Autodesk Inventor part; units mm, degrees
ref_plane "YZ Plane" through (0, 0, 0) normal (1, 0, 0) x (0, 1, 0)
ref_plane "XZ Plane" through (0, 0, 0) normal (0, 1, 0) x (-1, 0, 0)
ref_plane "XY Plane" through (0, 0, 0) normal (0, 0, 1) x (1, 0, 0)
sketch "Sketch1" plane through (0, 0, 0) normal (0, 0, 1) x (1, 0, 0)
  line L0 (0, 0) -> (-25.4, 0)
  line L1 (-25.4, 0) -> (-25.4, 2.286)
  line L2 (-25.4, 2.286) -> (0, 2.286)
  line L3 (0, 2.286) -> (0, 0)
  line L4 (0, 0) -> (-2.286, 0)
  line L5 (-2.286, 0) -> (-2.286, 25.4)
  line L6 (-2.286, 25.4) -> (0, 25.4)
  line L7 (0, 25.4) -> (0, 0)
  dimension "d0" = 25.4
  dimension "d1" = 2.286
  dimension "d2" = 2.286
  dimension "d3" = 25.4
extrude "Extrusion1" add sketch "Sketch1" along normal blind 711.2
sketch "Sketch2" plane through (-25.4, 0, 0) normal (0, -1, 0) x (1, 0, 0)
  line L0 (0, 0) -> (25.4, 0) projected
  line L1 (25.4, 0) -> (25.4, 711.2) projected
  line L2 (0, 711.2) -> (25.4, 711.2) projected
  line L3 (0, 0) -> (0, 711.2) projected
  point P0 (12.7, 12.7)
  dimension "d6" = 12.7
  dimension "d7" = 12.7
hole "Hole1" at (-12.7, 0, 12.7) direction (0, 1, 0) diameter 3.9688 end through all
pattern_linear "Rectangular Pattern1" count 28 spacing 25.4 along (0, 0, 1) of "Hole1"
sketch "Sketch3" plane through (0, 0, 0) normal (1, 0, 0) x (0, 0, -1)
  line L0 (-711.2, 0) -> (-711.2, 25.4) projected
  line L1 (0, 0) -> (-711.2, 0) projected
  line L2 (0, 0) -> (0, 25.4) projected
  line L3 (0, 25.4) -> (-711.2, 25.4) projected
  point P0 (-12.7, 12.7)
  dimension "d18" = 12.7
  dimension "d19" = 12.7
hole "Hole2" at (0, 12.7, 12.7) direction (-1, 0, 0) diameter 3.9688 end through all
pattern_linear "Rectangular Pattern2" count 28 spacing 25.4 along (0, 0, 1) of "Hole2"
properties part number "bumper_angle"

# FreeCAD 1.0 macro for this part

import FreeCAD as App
import Part
import Sketcher
from FreeCAD import Vector
Q = App.Units.Quantity


def add_polygon(sketch, points):
    """Adds a closed chain of lines whose ends are joined by coincident constraints."""
    first, n = sketch.GeometryCount, len(points)
    for a, b in zip(points, points[1:] + points[:1]):
        sketch.addGeometry(Part.LineSegment(App.Vector(*a, 0), App.Vector(*b, 0)), False)
    for i in range(n):
        sketch.addConstraint(Sketcher.Constraint("Coincident", first + i, 2, first + (i + 1) % n, 1))

doc = App.newDocument("Part")
body = doc.addObject("PartDesign::Body", "Body")

sketch1 = body.newObject("Sketcher::SketchObject", "Sketch")
sketch1.AttachmentSupport = (doc.getObject("XY_Plane"), [""])
sketch1.MapMode = "FlatFace"
add_polygon(sketch1, [(0, 0), (0, 25.4), (-2.3, 25.4), (-2.3, 2.3), (-25.4, 2.3), (-25.4, 0)])
sketch1.addConstraint([
    Sketcher.Constraint("Vertical", 0),
    Sketcher.Constraint("Horizontal", 1),
    Sketcher.Constraint("Vertical", 2),
    Sketcher.Constraint("Horizontal", 3),
    Sketcher.Constraint("Vertical", 4),
    Sketcher.Constraint("Horizontal", 5),
    Sketcher.Constraint("Coincident", 5, 2, -1, 1),
    Sketcher.Constraint("Equal", 5, 0),
    Sketcher.Constraint("Equal", 3, 2),
    Sketcher.Constraint("DistanceX", 5, 1, 5, 2, Q("1 in")),
    Sketcher.Constraint("DistanceX", 1, 2, 1, 1, Q("0.09 in")),
])
pad1 = body.newObject("PartDesign::Pad", "Pad")
pad1.Profile = sketch1
pad1.Length = Q("28 in")

sketch2 = body.newObject("Sketcher::SketchObject", "Sketch001")
sketch2.AttachmentSupport = (doc.getObject("XZ_Plane"), [""])
sketch2.MapMode = "FlatFace"
sketch2.addGeometry(Part.Circle(Vector(-12.7, 12.7, 0), Vector(0, 0, 1), 2), False)
sketch2.addConstraint([
    Sketcher.Constraint("Diameter", 0, Q("0.156252 in")),
    Sketcher.Constraint("DistanceX", 0, 3, -1, 1, Q("0.5 in")),
    Sketcher.Constraint("DistanceY", -1, 1, 0, 3, Q("0.5 in")),
])
doc.recompute()
hole = body.newObject("PartDesign::Hole", "Hole")
hole.Profile = sketch2
hole.ThreadType = "None"
hole.Diameter = Q("0.156252 in")
hole.DepthType = "ThroughAll"
doc.recompute()

linearpattern = body.newObject("PartDesign::LinearPattern", "LinearPattern")
linearpattern.Originals = [hole]
linearpattern.Direction = (doc.getObject("Z_Axis"), [""])
linearpattern.Mode = "offset"
linearpattern.Offset = Q("1 in")
linearpattern.Occurrences = 28
body.Tip = linearpattern

sketch3 = body.newObject("Sketcher::SketchObject", "Sketch002")
sketch3.AttachmentSupport = (doc.getObject("YZ_Plane"), [""])
sketch3.MapMode = "FlatFace"
sketch3.addGeometry(Part.Circle(Vector(12.7, 12.7, 0), Vector(0, 0, 1), 2), False)
sketch3.addConstraint([
    Sketcher.Constraint("Diameter", 0, Q("0.156252 in")),
    Sketcher.Constraint("DistanceX", -1, 1, 0, 3, Q("0.5 in")),
    Sketcher.Constraint("DistanceY", -1, 1, 0, 3, Q("0.5 in")),
])
doc.recompute()
hole2 = body.newObject("PartDesign::Hole", "Hole001")
hole2.Profile = sketch3
hole2.ThreadType = "None"
hole2.Diameter = Q("0.156252 in")
hole2.DepthType = "ThroughAll"
doc.recompute()

linearpattern2 = body.newObject("PartDesign::LinearPattern", "LinearPattern001")
linearpattern2.Originals = [hole2]
linearpattern2.Direction = (doc.getObject("Z_Axis"), [""])
linearpattern2.Mode = "offset"
linearpattern2.Offset = Q("1 in")
linearpattern2.Occurrences = 28
body.Tip = linearpattern2

doc.recompute()
